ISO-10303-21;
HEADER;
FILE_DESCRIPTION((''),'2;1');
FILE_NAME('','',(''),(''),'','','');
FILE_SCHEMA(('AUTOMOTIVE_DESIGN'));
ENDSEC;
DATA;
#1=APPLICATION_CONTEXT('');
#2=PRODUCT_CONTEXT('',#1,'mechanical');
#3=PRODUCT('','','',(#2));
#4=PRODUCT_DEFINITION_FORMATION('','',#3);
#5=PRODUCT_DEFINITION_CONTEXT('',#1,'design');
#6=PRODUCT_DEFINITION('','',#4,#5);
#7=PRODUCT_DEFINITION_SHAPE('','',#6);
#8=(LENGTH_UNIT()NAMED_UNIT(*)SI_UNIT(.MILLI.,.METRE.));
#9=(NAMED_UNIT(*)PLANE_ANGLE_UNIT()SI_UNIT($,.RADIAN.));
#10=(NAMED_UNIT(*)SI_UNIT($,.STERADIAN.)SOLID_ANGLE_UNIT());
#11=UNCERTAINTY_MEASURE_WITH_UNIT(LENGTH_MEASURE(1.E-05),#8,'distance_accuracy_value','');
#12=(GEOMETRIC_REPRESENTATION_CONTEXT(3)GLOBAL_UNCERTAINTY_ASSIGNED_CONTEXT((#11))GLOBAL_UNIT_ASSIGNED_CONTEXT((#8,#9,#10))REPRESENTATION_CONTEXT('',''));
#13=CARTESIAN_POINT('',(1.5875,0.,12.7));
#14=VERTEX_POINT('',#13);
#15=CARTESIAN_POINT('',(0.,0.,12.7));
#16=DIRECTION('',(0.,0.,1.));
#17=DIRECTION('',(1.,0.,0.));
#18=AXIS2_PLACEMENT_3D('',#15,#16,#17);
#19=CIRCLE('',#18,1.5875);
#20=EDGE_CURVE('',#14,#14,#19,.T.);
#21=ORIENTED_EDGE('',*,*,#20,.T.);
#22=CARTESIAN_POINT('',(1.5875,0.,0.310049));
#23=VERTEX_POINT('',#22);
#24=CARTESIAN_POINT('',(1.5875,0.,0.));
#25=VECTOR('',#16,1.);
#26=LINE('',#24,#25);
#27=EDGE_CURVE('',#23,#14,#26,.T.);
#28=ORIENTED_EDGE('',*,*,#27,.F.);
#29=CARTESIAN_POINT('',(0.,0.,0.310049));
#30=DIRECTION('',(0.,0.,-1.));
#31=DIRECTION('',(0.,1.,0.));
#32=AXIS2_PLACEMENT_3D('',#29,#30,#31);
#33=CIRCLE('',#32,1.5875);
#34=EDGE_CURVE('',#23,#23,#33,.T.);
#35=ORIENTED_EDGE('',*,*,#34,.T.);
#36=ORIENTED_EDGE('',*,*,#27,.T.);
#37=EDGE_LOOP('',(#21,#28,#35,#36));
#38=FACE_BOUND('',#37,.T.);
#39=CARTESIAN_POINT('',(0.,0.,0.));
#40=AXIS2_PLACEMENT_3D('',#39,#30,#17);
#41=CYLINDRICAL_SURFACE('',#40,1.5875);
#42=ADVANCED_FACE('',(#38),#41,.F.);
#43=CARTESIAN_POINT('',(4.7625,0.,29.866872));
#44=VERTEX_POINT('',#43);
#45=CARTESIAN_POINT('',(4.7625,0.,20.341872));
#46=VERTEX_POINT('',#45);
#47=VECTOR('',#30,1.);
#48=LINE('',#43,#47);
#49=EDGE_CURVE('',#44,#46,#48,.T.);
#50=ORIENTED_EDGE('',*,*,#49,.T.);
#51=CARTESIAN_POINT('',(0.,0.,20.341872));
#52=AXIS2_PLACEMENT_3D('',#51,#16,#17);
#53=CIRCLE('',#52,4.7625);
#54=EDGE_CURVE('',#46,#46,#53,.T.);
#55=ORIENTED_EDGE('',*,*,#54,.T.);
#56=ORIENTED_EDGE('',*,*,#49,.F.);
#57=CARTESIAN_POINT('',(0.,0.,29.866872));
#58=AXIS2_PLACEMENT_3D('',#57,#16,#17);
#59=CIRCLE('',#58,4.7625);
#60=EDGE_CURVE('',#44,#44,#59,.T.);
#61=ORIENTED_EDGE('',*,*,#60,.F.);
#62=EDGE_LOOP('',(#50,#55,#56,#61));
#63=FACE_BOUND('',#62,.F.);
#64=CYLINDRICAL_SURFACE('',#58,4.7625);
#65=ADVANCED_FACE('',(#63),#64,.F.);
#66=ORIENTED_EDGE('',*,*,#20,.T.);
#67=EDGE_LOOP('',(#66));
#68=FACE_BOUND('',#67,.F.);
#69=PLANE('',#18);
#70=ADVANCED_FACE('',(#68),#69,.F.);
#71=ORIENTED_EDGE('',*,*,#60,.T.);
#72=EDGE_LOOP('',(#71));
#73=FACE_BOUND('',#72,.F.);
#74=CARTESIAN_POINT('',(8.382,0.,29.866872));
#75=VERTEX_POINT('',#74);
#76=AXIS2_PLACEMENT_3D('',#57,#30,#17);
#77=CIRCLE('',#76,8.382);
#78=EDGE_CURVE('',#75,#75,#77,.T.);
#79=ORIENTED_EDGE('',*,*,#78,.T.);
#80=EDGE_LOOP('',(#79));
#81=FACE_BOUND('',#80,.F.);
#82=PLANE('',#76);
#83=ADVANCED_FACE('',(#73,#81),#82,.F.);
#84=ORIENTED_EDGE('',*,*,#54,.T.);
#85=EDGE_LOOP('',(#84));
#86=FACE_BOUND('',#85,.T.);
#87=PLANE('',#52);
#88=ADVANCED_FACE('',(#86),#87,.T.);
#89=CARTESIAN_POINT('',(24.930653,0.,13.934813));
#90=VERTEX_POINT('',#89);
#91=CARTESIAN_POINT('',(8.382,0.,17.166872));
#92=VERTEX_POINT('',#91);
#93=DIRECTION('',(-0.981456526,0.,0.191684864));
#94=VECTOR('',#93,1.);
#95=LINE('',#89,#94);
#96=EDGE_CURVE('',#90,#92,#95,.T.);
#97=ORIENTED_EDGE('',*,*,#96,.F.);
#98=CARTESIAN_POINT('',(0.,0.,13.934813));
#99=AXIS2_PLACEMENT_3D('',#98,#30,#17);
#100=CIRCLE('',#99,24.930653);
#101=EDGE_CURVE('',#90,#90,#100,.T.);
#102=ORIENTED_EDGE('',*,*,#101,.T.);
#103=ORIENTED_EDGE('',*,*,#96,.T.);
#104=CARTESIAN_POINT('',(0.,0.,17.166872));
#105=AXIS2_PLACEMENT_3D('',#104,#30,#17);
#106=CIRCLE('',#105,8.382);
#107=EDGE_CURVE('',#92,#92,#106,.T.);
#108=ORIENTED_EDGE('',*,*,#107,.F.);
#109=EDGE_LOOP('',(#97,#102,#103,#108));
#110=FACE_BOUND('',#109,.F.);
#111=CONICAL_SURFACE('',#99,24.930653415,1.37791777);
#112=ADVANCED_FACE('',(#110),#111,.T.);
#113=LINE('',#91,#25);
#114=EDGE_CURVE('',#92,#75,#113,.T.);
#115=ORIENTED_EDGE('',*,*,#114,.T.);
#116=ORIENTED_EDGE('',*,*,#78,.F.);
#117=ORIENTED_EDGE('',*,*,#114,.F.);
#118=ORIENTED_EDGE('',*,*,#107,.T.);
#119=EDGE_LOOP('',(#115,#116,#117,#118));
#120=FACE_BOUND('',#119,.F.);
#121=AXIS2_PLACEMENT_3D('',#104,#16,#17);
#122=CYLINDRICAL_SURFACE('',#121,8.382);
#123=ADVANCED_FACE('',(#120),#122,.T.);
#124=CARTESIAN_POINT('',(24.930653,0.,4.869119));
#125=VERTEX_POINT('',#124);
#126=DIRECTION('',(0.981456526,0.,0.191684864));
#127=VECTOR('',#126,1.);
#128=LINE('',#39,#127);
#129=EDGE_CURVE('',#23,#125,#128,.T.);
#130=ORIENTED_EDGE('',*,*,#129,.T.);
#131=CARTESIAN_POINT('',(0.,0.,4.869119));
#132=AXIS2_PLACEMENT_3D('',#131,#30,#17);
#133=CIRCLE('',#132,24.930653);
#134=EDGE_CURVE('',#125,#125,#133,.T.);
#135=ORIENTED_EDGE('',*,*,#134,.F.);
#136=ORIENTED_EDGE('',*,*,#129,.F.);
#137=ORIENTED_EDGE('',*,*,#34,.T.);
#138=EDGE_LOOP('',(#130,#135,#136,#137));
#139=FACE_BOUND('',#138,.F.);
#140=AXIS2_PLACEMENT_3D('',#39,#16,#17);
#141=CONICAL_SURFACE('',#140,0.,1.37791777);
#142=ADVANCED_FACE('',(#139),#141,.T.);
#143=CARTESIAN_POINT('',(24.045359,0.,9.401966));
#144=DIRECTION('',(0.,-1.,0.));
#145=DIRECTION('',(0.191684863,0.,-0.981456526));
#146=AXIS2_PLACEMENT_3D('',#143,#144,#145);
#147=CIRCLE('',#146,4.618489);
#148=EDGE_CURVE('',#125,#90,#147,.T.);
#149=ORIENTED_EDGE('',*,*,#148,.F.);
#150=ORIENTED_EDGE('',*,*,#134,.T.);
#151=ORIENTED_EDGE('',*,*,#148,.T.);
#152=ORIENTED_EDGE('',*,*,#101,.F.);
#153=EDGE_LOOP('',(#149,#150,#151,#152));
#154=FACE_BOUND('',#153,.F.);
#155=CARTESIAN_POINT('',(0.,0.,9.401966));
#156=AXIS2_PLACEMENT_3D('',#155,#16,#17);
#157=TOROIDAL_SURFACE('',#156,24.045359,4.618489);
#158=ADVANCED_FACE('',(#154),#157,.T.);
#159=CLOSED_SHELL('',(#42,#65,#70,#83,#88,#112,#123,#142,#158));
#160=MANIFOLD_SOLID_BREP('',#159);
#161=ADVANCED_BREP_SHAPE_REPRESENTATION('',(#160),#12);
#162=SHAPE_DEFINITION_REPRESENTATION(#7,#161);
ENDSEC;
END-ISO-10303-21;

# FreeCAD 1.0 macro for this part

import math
import FreeCAD as App
import Part
import Sketcher

V = App.Vector
Q = App.Units.Quantity

doc = App.newDocument("Part")
body = doc.addObject("PartDesign::Body", "Body")

# Sketch on XZ plane
sketch1 = body.newObject("Sketcher::SketchObject", "Sketch")
sketch1.AttachmentSupport = (doc.getObject("XZ_Plane"), [""])
sketch1.MapMode = "FlatFace"
sketch1.addGeometry(Part.LineSegment(V(0, 29.9, 0), V(0, 0, 0)), False)
sketch1.addGeometry(Part.LineSegment(V(0, 0, 0), V(24.9, 4.9, 0)), False)
sketch1.addGeometry(Part.ArcOfCircle(Part.Circle(V(24, 9.4, 0), V(0, 0, 1), 4.6), math.radians(-79), math.radians(79)), False)
sketch1.addGeometry(Part.LineSegment(V(24.9, 13.9, 0), V(8.4, 17.2, 0)), False)
sketch1.addGeometry(Part.LineSegment(V(8.4, 17.2, 0), V(8.4, 29.9, 0)), False)
sketch1.addGeometry(Part.LineSegment(V(8.4, 29.9, 0), V(0, 29.9, 0)), False)
sketch1.addConstraint(Sketcher.Constraint("Coincident", 0, 2, 1, 1))
sketch1.addConstraint(Sketcher.Constraint("Tangent", 1, 2, 2, 1))
sketch1.addConstraint(Sketcher.Constraint("Tangent", 2, 2, 3, 1))
sketch1.addConstraint(Sketcher.Constraint("Coincident", 3, 2, 4, 1))
sketch1.addConstraint(Sketcher.Constraint("Coincident", 4, 2, 5, 1))
sketch1.addConstraint(Sketcher.Constraint("Coincident", 5, 2, 0, 1))
sketch1.addConstraint(Sketcher.Constraint("Vertical", 0))
sketch1.addConstraint(Sketcher.Constraint("Vertical", 4))
sketch1.addConstraint(Sketcher.Constraint("Horizontal", 5))
sketch1.addConstraint(Sketcher.Constraint("Coincident", 0, 2, -1, 1))
sketch1.addConstraint(Sketcher.Constraint("Vertical", 1, 2, 2, 2))
sketch1.addConstraint(Sketcher.Constraint("DistanceY", 4, 1, 4, 2, Q("0.5 in")))
sketch1.addConstraint(Sketcher.Constraint("DistanceX", 5, 2, 5, 1, Q("0.33 in")))
sketch1.addConstraint(Sketcher.Constraint("Radius", 2, 4.618489))
sketch1.addConstraint(Sketcher.Constraint("Distance", 1, 25.401689))
sketch1.addConstraint(Sketcher.Constraint("Distance", 3, 16.861321))
revolution = body.newObject("PartDesign::Revolution", "Revolution")
revolution.Profile = sketch1
revolution.ReferenceAxis = (sketch1, ["V_Axis"])
revolution.Angle = 360

# Sketch on XY plane
sketch2 = body.newObject("Sketcher::SketchObject", "Sketch001")
sketch2.AttachmentSupport = (doc.getObject("XY_Plane"), [""])
sketch2.MapMode = "FlatFace"
sketch2.AttachmentOffset = App.Placement(V(0, 0, 29.866872), App.Rotation())
sketch2.addGeometry(Part.Circle(V(0, 0, 0), V(0, 0, 1), 4.8), False)
sketch2.addConstraint(Sketcher.Constraint("Coincident", 0, 3, -1, 1))
sketch2.addConstraint(Sketcher.Constraint("Diameter", 0, Q("0.375 in")))
pocket1 = body.newObject("PartDesign::Pocket", "Pocket")
pocket1.Profile = sketch2
pocket1.Length = Q("0.375 in")

# Sketch on XY plane
sketch3 = body.newObject("Sketcher::SketchObject", "Sketch002")
sketch3.AttachmentSupport = (doc.getObject("XY_Plane"), [""])
sketch3.MapMode = "FlatFace"
sketch3.addGeometry(Part.Circle(V(0, 0, 0), V(0, 0, 1), 1.6), False)
sketch3.addConstraint(Sketcher.Constraint("Coincident", 0, 3, -1, 1))
sketch3.addConstraint(Sketcher.Constraint("Diameter", 0, Q("0.125 in")))
pocket2 = body.newObject("PartDesign::Pocket", "Pocket001")
pocket2.Profile = sketch3
pocket2.Length = Q("0.5 in")
pocket2.Reversed = True

doc.recompute()
